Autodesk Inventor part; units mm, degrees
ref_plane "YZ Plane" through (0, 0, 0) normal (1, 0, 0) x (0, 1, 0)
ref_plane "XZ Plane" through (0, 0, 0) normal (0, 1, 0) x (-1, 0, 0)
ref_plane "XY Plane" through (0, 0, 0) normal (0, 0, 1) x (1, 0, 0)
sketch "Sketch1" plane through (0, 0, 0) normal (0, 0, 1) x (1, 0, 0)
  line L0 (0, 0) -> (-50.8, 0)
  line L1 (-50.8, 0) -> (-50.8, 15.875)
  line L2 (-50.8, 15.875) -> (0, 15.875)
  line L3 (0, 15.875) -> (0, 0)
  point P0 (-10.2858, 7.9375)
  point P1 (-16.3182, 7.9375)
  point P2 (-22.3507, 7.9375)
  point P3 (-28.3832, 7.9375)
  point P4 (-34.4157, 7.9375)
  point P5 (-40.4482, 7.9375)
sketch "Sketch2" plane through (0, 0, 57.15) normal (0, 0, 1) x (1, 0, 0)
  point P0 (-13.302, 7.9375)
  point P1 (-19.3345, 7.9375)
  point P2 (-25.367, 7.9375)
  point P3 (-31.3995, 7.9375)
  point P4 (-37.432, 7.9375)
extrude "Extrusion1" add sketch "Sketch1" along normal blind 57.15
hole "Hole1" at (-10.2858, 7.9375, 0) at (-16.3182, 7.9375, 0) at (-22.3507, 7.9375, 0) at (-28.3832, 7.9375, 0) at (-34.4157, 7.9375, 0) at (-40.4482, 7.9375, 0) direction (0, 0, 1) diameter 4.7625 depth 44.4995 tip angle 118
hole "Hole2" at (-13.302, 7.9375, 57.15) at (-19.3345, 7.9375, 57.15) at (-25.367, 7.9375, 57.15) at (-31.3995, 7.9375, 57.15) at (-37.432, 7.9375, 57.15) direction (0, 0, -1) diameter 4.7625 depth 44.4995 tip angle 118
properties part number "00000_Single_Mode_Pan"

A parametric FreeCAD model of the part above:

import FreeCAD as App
import Part
import Sketcher
from FreeCAD import Vector
Q = App.Units.Quantity


def add_polygon(sketch, points):
    """Adds a closed chain of lines whose ends are joined by coincident constraints."""
    first, n = sketch.GeometryCount, len(points)
    for a, b in zip(points, points[1:] + points[:1]):
        sketch.addGeometry(Part.LineSegment(App.Vector(*a, 0), App.Vector(*b, 0)), False)
    for i in range(n):
        sketch.addConstraint(Sketcher.Constraint("Coincident", first + i, 2, first + (i + 1) % n, 1))

doc = App.newDocument("Part")
body = doc.addObject("PartDesign::Body", "Body")

sketch1 = body.newObject("Sketcher::SketchObject", "Sketch")
sketch1.AttachmentSupport = (doc.getObject("XY_Plane"), [""])
sketch1.MapMode = "FlatFace"
add_polygon(sketch1, [(-51, 0), (0, 0), (0, 16), (-51, 16)])
sketch1.addConstraint(Sketcher.Constraint("Horizontal", 0))
sketch1.addConstraint(Sketcher.Constraint("Vertical", 1))
sketch1.addConstraint(Sketcher.Constraint("Horizontal", 2))
sketch1.addConstraint(Sketcher.Constraint("Vertical", 3))
sketch1.addConstraint(Sketcher.Constraint("Coincident", 0, 2, -1, 1))
sketch1.addConstraint(Sketcher.Constraint("DistanceX", 0, 1, 0, 2, Q("2 in")))
sketch1.addConstraint(Sketcher.Constraint("DistanceY", 1, 1, 1, 2, Q("0.625 in")))
pad1 = body.newObject("PartDesign::Pad", "Pad")
pad1.Profile = sketch1
pad1.Length = Q("2.25 in")

sketch2 = body.newObject("Sketcher::SketchObject", "Sketch001")
sketch2.AttachmentSupport = (doc.getObject("XY_Plane"), [""])
sketch2.MapMode = "FlatFace"
sketch2.addGeometry(Part.Circle(Vector(-10.3, 7.9, 0), Vector(0, 0, 1), 2.4), False)
sketch2.addGeometry(Part.Circle(Vector(-16.3, 7.9, 0), Vector(0, 0, 1), 2.4), False)
sketch2.addGeometry(Part.Circle(Vector(-22.4, 7.9, 0), Vector(0, 0, 1), 2.4), False)
sketch2.addGeometry(Part.Circle(Vector(-28.4, 7.9, 0), Vector(0, 0, 1), 2.4), False)
sketch2.addGeometry(Part.Circle(Vector(-34.4, 7.9, 0), Vector(0, 0, 1), 2.4), False)
sketch2.addGeometry(Part.Circle(Vector(-40.4, 7.9, 0), Vector(0, 0, 1), 2.4), False)
sketch2.addConstraint(Sketcher.Constraint("Equal", 0, 1))
sketch2.addConstraint(Sketcher.Constraint("Equal", 1, 2))
sketch2.addConstraint(Sketcher.Constraint("Equal", 2, 3))
sketch2.addConstraint(Sketcher.Constraint("Equal", 3, 4))
sketch2.addConstraint(Sketcher.Constraint("Equal", 4, 5))
sketch2.addConstraint(Sketcher.Constraint("Horizontal", 0, 3, 1, 3))
sketch2.addConstraint(Sketcher.Constraint("Horizontal", 1, 3, 2, 3))
sketch2.addConstraint(Sketcher.Constraint("Horizontal", 2, 3, 3, 3))
sketch2.addConstraint(Sketcher.Constraint("Horizontal", 3, 3, 4, 3))
sketch2.addConstraint(Sketcher.Constraint("Horizontal", 4, 3, 5, 3))
sketch2.addConstraint(Sketcher.Constraint("Diameter", 0, Q("0.1875 in")))
sketch2.addConstraint(Sketcher.Constraint("DistanceX", 4, 3, 0, 3, Q("0.95 in")))
sketch2.addConstraint(Sketcher.Constraint("DistanceX", 5, 3, 1, 3, Q("0.95 in")))
sketch2.addConstraint(Sketcher.Constraint("DistanceY", -1, 1, 0, 3, Q("0.3125 in")))
sketch2.addConstraint(Sketcher.Constraint("DistanceX", 2, 3, 0, 3, Q("0.475 in")))
sketch2.addConstraint(Sketcher.Constraint("DistanceX", 3, 3, 1, 3, Q("0.475 in")))
sketch2.addConstraint(Sketcher.Constraint("DistanceX", 5, 3, 0, 3, Q("1.1875 in")))
sketch2.addConstraint(Sketcher.Constraint("DistanceX", 0, 3, -1, 1, Q("10.2858 mm")))
doc.recompute()
hole = body.newObject("PartDesign::Hole", "Hole")
hole.Profile = sketch2
hole.ThreadType = "None"
hole.Diameter = Q("0.1875 in")
hole.DepthType = "Dimension"
hole.Depth = 44.4995
hole.DrillPoint = "Angled"
hole.DrillPointAngle = 118
hole.Reversed = True

sketch3 = body.newObject("Sketcher::SketchObject", "Sketch002")
sketch3.AttachmentSupport = (doc.getObject("XY_Plane"), [""])
sketch3.MapMode = "FlatFace"
sketch3.AttachmentOffset = App.Placement(Vector(0, 0, 2.25 * 25.4), App.Rotation())
sketch3.addGeometry(Part.Circle(Vector(-13.3, 7.9, 0), Vector(0, 0, 1), 2.4), False)
sketch3.addGeometry(Part.Circle(Vector(-19.3, 7.9, 0), Vector(0, 0, 1), 2.4), False)
sketch3.addGeometry(Part.Circle(Vector(-25.4, 7.9, 0), Vector(0, 0, 1), 2.4), False)
sketch3.addGeometry(Part.Circle(Vector(-31.4, 7.9, 0), Vector(0, 0, 1), 2.4), False)
sketch3.addGeometry(Part.Circle(Vector(-37.4, 7.9, 0), Vector(0, 0, 1), 2.4), False)
sketch3.addConstraint(Sketcher.Constraint("Equal", 0, 1))
sketch3.addConstraint(Sketcher.Constraint("Equal", 1, 2))
sketch3.addConstraint(Sketcher.Constraint("Equal", 2, 3))
sketch3.addConstraint(Sketcher.Constraint("Equal", 3, 4))
sketch3.addConstraint(Sketcher.Constraint("Horizontal", 0, 3, 1, 3))
sketch3.addConstraint(Sketcher.Constraint("Horizontal", 1, 3, 2, 3))
sketch3.addConstraint(Sketcher.Constraint("Horizontal", 2, 3, 3, 3))
sketch3.addConstraint(Sketcher.Constraint("Horizontal", 3, 3, 4, 3))
sketch3.addConstraint(Sketcher.Constraint("Diameter", 0, Q("0.1875 in")))
sketch3.addConstraint(Sketcher.Constraint("DistanceX", 4, 3, 0, 3, Q("0.95 in")))
sketch3.addConstraint(Sketcher.Constraint("DistanceY", -1, 1, 0, 3, Q("0.3125 in")))
sketch3.addConstraint(Sketcher.Constraint("DistanceX", 2, 3, 0, 3, Q("0.475 in")))
sketch3.addConstraint(Sketcher.Constraint("DistanceX", 3, 3, 1, 3, Q("0.475 in")))
sketch3.addConstraint(Sketcher.Constraint("DistanceX", 0, 3, -1, 1, Q("0.5237 in")))
sketch3.addConstraint(Sketcher.Constraint("DistanceX", 1, 3, -1, 1, Q("0.7612 in")))
doc.recompute()
hole2 = body.newObject("PartDesign::Hole", "Hole001")
hole2.Profile = sketch3
hole2.ThreadType = "None"
hole2.Diameter = Q("0.1875 in")
hole2.DepthType = "Dimension"
hole2.Depth = 44.4995
hole2.DrillPoint = "Angled"
hole2.DrillPointAngle = 118

doc.recompute()
